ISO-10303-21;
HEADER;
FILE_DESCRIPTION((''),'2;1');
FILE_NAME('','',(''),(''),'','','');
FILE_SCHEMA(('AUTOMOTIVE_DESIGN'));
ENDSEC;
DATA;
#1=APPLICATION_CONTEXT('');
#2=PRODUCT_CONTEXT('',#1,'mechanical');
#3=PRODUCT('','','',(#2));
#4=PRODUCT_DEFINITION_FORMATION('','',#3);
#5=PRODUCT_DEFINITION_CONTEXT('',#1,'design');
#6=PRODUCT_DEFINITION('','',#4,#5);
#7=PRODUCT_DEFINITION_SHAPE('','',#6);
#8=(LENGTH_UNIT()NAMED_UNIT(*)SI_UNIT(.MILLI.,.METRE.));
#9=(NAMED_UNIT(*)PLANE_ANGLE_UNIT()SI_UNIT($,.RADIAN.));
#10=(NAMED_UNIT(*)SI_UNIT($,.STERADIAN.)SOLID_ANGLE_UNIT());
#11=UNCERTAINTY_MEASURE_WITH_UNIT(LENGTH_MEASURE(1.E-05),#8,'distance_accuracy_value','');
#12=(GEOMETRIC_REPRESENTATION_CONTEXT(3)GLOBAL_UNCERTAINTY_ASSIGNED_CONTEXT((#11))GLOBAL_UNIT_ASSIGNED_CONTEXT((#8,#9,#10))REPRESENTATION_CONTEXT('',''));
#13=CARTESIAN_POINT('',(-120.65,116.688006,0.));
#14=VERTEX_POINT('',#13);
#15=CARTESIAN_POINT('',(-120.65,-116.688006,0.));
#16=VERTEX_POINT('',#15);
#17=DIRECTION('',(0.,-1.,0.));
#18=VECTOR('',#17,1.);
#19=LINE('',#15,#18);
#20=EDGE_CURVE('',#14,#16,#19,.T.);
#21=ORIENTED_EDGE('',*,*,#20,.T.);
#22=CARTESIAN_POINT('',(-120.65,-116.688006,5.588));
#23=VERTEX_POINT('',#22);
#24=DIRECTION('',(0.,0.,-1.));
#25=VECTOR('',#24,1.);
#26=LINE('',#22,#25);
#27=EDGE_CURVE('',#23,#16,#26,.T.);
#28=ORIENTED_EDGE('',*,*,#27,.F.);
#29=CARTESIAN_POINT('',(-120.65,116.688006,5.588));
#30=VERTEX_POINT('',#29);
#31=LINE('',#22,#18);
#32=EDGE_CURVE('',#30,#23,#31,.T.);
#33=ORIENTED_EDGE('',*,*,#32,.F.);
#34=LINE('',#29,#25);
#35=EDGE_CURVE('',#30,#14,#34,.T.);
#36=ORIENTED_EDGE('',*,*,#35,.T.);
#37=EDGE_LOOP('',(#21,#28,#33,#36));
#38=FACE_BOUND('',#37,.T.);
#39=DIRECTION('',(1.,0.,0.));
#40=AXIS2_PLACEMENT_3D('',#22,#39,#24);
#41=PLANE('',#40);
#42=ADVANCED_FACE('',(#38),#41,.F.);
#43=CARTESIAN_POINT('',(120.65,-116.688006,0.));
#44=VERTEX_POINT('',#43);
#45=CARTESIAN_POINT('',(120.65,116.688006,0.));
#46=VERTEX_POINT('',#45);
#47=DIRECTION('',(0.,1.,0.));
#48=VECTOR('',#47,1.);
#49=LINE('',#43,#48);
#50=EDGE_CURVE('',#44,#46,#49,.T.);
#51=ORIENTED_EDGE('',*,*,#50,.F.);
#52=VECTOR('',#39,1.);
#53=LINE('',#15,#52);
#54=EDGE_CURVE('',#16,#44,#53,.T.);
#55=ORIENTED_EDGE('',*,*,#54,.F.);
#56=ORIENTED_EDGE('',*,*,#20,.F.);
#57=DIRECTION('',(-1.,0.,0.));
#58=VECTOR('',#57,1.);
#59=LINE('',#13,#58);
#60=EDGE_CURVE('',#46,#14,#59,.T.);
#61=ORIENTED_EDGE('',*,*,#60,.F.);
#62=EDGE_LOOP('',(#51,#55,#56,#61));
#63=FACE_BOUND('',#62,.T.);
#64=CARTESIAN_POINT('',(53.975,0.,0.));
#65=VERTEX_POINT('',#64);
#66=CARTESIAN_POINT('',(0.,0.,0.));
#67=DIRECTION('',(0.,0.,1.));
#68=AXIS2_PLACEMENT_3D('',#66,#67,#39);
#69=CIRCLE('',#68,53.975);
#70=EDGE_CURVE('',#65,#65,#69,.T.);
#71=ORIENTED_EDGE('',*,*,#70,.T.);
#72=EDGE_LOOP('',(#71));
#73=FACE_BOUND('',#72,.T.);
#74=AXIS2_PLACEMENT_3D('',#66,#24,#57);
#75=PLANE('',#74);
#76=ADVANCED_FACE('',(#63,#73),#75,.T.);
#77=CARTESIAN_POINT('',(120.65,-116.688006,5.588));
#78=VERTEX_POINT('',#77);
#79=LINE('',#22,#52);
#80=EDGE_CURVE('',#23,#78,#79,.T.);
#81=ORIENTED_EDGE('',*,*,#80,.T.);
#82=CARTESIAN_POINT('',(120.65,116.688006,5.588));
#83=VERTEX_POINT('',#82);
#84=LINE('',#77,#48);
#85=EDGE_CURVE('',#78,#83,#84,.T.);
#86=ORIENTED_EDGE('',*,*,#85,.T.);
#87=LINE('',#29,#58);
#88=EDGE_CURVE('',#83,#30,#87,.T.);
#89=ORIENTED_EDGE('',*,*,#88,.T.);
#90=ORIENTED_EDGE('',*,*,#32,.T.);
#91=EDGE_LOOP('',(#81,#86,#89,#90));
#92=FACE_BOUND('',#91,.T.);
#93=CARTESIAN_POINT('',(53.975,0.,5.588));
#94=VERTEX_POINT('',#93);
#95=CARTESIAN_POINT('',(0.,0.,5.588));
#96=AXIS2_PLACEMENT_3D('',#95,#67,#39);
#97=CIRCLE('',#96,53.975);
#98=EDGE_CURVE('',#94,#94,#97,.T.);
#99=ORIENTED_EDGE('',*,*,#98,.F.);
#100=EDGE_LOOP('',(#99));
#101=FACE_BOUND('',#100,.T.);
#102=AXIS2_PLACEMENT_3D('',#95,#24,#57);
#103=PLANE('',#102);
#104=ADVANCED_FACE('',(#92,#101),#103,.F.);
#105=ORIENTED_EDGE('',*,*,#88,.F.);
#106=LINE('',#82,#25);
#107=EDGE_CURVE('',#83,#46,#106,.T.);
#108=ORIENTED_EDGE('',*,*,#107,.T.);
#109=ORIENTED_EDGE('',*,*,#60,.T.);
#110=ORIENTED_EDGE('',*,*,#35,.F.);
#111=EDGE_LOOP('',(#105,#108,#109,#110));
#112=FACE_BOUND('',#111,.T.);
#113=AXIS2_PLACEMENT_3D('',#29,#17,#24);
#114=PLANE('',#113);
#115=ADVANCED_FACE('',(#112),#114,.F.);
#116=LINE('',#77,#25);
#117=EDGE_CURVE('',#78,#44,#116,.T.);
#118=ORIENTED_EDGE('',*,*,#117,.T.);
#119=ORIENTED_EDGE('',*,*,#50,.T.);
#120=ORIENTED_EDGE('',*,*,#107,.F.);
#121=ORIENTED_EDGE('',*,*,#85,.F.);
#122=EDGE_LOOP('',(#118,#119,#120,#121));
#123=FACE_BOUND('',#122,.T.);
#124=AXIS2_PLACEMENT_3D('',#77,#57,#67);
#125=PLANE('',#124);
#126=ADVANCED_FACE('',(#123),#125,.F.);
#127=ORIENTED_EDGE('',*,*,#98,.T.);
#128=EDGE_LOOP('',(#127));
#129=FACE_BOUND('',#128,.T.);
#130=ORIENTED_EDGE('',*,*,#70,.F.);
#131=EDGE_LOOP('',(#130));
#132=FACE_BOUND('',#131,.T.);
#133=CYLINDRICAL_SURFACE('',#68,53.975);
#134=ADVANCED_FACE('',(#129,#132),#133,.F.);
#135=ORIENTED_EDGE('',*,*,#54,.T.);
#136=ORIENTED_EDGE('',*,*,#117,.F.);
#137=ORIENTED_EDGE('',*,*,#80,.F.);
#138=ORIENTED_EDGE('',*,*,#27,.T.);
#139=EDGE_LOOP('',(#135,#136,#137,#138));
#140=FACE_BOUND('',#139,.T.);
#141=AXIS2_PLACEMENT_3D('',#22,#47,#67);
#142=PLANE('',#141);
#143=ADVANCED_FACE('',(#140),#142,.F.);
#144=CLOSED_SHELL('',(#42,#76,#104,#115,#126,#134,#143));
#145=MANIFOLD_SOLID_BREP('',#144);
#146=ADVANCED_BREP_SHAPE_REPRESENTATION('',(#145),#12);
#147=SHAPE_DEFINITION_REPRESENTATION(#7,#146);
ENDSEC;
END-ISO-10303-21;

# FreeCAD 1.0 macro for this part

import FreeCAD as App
import Part
import Sketcher
Q = App.Units.Quantity


def add_polygon(sketch, points):
    """Adds a closed chain of lines whose ends are joined by coincident constraints."""
    first, n = sketch.GeometryCount, len(points)
    for a, b in zip(points, points[1:] + points[:1]):
        sketch.addGeometry(Part.LineSegment(App.Vector(*a, 0), App.Vector(*b, 0)), False)
    for i in range(n):
        sketch.addConstraint(Sketcher.Constraint("Coincident", first + i, 2, first + (i + 1) % n, 1))

doc = App.newDocument("Part")
body = doc.addObject("PartDesign::Body", "Body")

# Sketch on XY plane
sketch1 = body.newObject("Sketcher::SketchObject", "Sketch")
sketch1.AttachmentSupport = (doc.getObject("XY_Plane"), [""])
sketch1.MapMode = "FlatFace"
add_polygon(sketch1, [(-121, 117), (-121, -117), (121, -117), (121, 117)])  # lines 0-3
sketch1.addConstraint([
    Sketcher.Constraint("Vertical", 0),
    Sketcher.Constraint("Horizontal", 1),
    Sketcher.Constraint("Vertical", 2),
    Sketcher.Constraint("Horizontal", 3),
    Sketcher.Constraint("Symmetric", 0, 2, 2, 2, -1, 1),
    Sketcher.Constraint("DistanceX", 1, 1, 1, 2, Q("9.5 in")),
    Sketcher.Constraint("DistanceY", 0, 2, 0, 1, 233.376013),
])
pad1 = body.newObject("PartDesign::Pad", "Pad")
pad1.Profile = sketch1
pad1.Length = Q("0.22 in")

# Sketch on XY plane
sketch2 = body.newObject("Sketcher::SketchObject", "Sketch001")
sketch2.AttachmentSupport = (doc.getObject("XY_Plane"), [""])
sketch2.MapMode = "FlatFace"
sketch2.AttachmentOffset = App.Placement(App.Vector(0, 0, 0.22 * 25.4), App.Rotation())
sketch2.addGeometry(Part.Circle(App.Vector(0, 0, 0), App.Vector(0, 0, 1), 54), False)
sketch2.addConstraint([
    Sketcher.Constraint("Coincident", 0, 3, -1, 1),
    Sketcher.Constraint("Diameter", 0, Q("4.25 in")),
])
pocket1 = body.newObject("PartDesign::Pocket", "Pocket")
pocket1.Profile = sketch2
pocket1.Type = "ThroughAll"

doc.recompute()
